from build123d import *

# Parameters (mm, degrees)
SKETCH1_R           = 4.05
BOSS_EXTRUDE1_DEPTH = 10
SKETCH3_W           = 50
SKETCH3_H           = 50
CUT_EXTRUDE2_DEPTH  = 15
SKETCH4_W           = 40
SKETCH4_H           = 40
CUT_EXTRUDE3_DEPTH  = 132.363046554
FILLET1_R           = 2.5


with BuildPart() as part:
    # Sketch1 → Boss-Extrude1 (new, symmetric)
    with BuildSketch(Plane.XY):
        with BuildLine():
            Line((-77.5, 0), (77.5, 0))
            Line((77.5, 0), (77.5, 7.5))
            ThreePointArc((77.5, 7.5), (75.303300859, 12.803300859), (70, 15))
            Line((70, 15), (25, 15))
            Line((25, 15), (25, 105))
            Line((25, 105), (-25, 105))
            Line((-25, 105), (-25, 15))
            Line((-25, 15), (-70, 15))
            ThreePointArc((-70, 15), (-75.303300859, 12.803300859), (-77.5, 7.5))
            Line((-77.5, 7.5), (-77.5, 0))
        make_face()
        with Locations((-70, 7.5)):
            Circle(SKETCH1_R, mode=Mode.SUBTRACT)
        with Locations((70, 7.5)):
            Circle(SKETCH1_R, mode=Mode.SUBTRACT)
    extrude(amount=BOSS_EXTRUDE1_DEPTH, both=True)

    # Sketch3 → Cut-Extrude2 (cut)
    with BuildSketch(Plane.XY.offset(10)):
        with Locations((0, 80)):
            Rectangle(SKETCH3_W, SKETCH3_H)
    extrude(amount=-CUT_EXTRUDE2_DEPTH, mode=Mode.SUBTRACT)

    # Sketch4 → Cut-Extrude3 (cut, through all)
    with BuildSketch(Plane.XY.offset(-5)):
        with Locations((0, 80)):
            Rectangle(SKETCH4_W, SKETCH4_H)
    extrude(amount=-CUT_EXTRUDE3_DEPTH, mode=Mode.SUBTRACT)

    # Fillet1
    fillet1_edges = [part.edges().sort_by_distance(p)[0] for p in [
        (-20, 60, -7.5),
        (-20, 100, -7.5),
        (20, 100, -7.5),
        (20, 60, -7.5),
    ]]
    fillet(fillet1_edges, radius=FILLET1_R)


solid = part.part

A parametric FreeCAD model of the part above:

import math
import FreeCAD as App
import Part
import Sketcher
from FreeCAD import Vector


def edges_at(feature, points):
    """Names of the edges that pass closest to the given points."""
    edges = feature.Shape.Edges
    near = lambda p: min(range(len(edges)), key=lambda i: edges[i].distToShape(Part.Vertex(*p))[0])
    return sorted({f"Edge{near(p) + 1}" for p in points})

doc = App.newDocument("Part")
body = doc.addObject("PartDesign::Body", "Body")

sketch1 = body.newObject("Sketcher::SketchObject", "Sketch")
sketch1.AttachmentSupport = (doc.getObject("XY_Plane"), [""])
sketch1.MapMode = "FlatFace"
sketch1.addGeometry(Part.LineSegment(Vector(-77.5, 0, 0), Vector(77.5, 0, 0)), False)
sketch1.addGeometry(Part.LineSegment(Vector(77.5, 0, 0), Vector(77.5, 7.5, 0)), False)
sketch1.addGeometry(Part.ArcOfCircle(Part.Circle(Vector(70, 7.5, 0), Vector(0, 0, 1), 7.5), math.radians(0), math.radians(90)), False)
sketch1.addGeometry(Part.LineSegment(Vector(70, 15, 0), Vector(25, 15, 0)), False)
sketch1.addGeometry(Part.LineSegment(Vector(25, 15, 0), Vector(25, 105, 0)), False)
sketch1.addGeometry(Part.LineSegment(Vector(25, 105, 0), Vector(-25, 105, 0)), False)
sketch1.addGeometry(Part.LineSegment(Vector(-25, 105, 0), Vector(-25, 15, 0)), False)
sketch1.addGeometry(Part.LineSegment(Vector(-25, 15, 0), Vector(-70, 15, 0)), False)
sketch1.addGeometry(Part.ArcOfCircle(Part.Circle(Vector(-70, 7.5, 0), Vector(0, 0, 1), 7.5), math.radians(90), math.radians(180)), False)
sketch1.addGeometry(Part.LineSegment(Vector(-77.5, 7.5, 0), Vector(-77.5, 0, 0)), False)
sketch1.addGeometry(Part.Circle(Vector(-70, 7.5, 0), Vector(0, 0, 1), 4), False)
sketch1.addGeometry(Part.Circle(Vector(70, 7.5, 0), Vector(0, 0, 1), 4), False)
sketch1.addConstraint(Sketcher.Constraint("Coincident", 0, 2, 1, 1))
sketch1.addConstraint(Sketcher.Constraint("Tangent", 1, 2, 2, 1))
sketch1.addConstraint(Sketcher.Constraint("Tangent", 2, 2, 3, 1))
sketch1.addConstraint(Sketcher.Constraint("Coincident", 3, 2, 4, 1))
sketch1.addConstraint(Sketcher.Constraint("Coincident", 4, 2, 5, 1))
sketch1.addConstraint(Sketcher.Constraint("Coincident", 5, 2, 6, 1))
sketch1.addConstraint(Sketcher.Constraint("Coincident", 6, 2, 7, 1))
sketch1.addConstraint(Sketcher.Constraint("Tangent", 7, 2, 8, 1))
sketch1.addConstraint(Sketcher.Constraint("Tangent", 8, 2, 9, 1))
sketch1.addConstraint(Sketcher.Constraint("Coincident", 9, 2, 0, 1))
sketch1.addConstraint(Sketcher.Constraint("Horizontal", 0))
sketch1.addConstraint(Sketcher.Constraint("Vertical", 1))
sketch1.addConstraint(Sketcher.Constraint("Horizontal", 3))
sketch1.addConstraint(Sketcher.Constraint("Vertical", 4))
sketch1.addConstraint(Sketcher.Constraint("Horizontal", 5))
sketch1.addConstraint(Sketcher.Constraint("Vertical", 6))
sketch1.addConstraint(Sketcher.Constraint("Horizontal", 7))
sketch1.addConstraint(Sketcher.Constraint("Vertical", 9))
sketch1.addConstraint(Sketcher.Constraint("Coincident", 10, 3, 8, 3))
sketch1.addConstraint(Sketcher.Constraint("Coincident", 11, 3, 2, 3))
sketch1.addConstraint(Sketcher.Constraint("Equal", 2, 8))
sketch1.addConstraint(Sketcher.Constraint("Equal", 10, 11))
sketch1.addConstraint(Sketcher.Constraint("Symmetric", 0, 2, 9, 2, -1, 1))
sketch1.addConstraint(Sketcher.Constraint("Symmetric", 3, 2, 6, 2, -2))
sketch1.addConstraint(Sketcher.Constraint("Diameter", 10, 8.1))
sketch1.addConstraint(Sketcher.Constraint("Radius", 2, 7.5))
sketch1.addConstraint(Sketcher.Constraint("DistanceX", 0, 1, 0, 2, 155.0))
sketch1.addConstraint(Sketcher.Constraint("DistanceX", 3, 2, 3, 1, 45.0))
sketch1.addConstraint(Sketcher.Constraint("DistanceY", 4, 1, 4, 2, 90.0))
sketch1.addConstraint(Sketcher.Constraint("DistanceY", 1, 1, 1, 2, 7.5))
pad1 = body.newObject("PartDesign::Pad", "Pad")
pad1.Profile = sketch1
pad1.Length = 20
pad1.Midplane = True

sketch2 = body.newObject("Sketcher::SketchObject", "Sketch001")
sketch2.AttachmentSupport = (doc.getObject("XY_Plane"), [""])
sketch2.MapMode = "FlatFace"
sketch2.AttachmentOffset = App.Placement(Vector(0, 0, 10), App.Rotation())
sketch2.addGeometry(Part.LineSegment(Vector(-25, 105, 0), Vector(-25, 55, 0)), False)
sketch2.addGeometry(Part.LineSegment(Vector(-25, 55, 0), Vector(25, 55, 0)), False)
sketch2.addGeometry(Part.LineSegment(Vector(25, 55, 0), Vector(25, 105, 0)), False)
sketch2.addGeometry(Part.LineSegment(Vector(25, 105, 0), Vector(-25, 105, 0)), False)
sketch2.addConstraint(Sketcher.Constraint("Coincident", 0, 2, 1, 1))
sketch2.addConstraint(Sketcher.Constraint("Coincident", 1, 2, 2, 1))
sketch2.addConstraint(Sketcher.Constraint("Coincident", 2, 2, 3, 1))
sketch2.addConstraint(Sketcher.Constraint("Coincident", 3, 2, 0, 1))
sketch2.addConstraint(Sketcher.Constraint("Vertical", 0))
sketch2.addConstraint(Sketcher.Constraint("Horizontal", 1))
sketch2.addConstraint(Sketcher.Constraint("Vertical", 2))
sketch2.addConstraint(Sketcher.Constraint("Horizontal", 3))
sketch2.addConstraint(Sketcher.Constraint("Equal", 3, 0))
sketch2.addConstraint(Sketcher.Constraint("DistanceX", 1, 1, 1, 2, 50.0))
sketch2.addConstraint(Sketcher.Constraint("DistanceX", 0, 2, -1, 1, 25.0))
sketch2.addConstraint(Sketcher.Constraint("DistanceY", -1, 1, 0, 2, 55.0))
pocket1 = body.newObject("PartDesign::Pocket", "Pocket")
pocket1.Profile = sketch2
pocket1.Length = 15

sketch3 = body.newObject("Sketcher::SketchObject", "Sketch002")
sketch3.AttachmentSupport = (doc.getObject("XY_Plane"), [""])
sketch3.MapMode = "FlatFace"
sketch3.AttachmentOffset = App.Placement(Vector(0, 0, -5), App.Rotation())
sketch3.addGeometry(Part.LineSegment(Vector(-20, 100, 0), Vector(-20, 60, 0)), False)
sketch3.addGeometry(Part.LineSegment(Vector(-20, 60, 0), Vector(20, 60, 0)), False)
sketch3.addGeometry(Part.LineSegment(Vector(20, 60, 0), Vector(20, 100, 0)), False)
sketch3.addGeometry(Part.LineSegment(Vector(20, 100, 0), Vector(-20, 100, 0)), False)
sketch3.addConstraint(Sketcher.Constraint("Coincident", 0, 2, 1, 1))
sketch3.addConstraint(Sketcher.Constraint("Coincident", 1, 2, 2, 1))
sketch3.addConstraint(Sketcher.Constraint("Coincident", 2, 2, 3, 1))
sketch3.addConstraint(Sketcher.Constraint("Coincident", 3, 2, 0, 1))
sketch3.addConstraint(Sketcher.Constraint("Vertical", 0))
sketch3.addConstraint(Sketcher.Constraint("Horizontal", 1))
sketch3.addConstraint(Sketcher.Constraint("Vertical", 2))
sketch3.addConstraint(Sketcher.Constraint("Horizontal", 3))
sketch3.addConstraint(Sketcher.Constraint("Equal", 3, 0))
sketch3.addConstraint(Sketcher.Constraint("DistanceX", 1, 1, 1, 2, 40.0))
sketch3.addConstraint(Sketcher.Constraint("DistanceX", 0, 2, -1, 1, 20.0))
sketch3.addConstraint(Sketcher.Constraint("DistanceY", -1, 1, 0, 2, 60.0))
pocket2 = body.newObject("PartDesign::Pocket", "Pocket001")
pocket2.Profile = sketch3
pocket2.Type = "ThroughAll"
doc.recompute()

fillet = body.newObject("PartDesign::Fillet", "Fillet")
fillet.Base = (pocket2, edges_at(pocket2, [
    (-20, 60, -7.5),
    (-20, 100, -7.5),
    (20, 100, -7.5),
    (20, 60, -7.5),
]))
fillet.Radius = 2.5

doc.recompute()
